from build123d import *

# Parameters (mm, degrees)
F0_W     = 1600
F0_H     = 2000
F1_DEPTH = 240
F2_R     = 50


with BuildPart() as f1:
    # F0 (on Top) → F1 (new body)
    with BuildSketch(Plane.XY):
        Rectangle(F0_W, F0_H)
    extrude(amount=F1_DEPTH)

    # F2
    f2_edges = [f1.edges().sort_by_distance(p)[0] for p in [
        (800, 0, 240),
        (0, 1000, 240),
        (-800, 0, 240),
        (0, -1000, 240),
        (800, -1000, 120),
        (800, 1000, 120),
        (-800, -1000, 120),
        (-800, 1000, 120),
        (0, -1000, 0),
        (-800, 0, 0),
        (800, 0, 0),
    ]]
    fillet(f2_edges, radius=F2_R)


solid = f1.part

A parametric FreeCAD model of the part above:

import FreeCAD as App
import Part
import Sketcher

V = App.Vector


def edges_at(feature, points):
    """Names of the edges that pass closest to the given points."""
    edges = feature.Shape.Edges
    near = lambda p: min(range(len(edges)), key=lambda i: edges[i].distToShape(Part.Vertex(*p))[0])
    return sorted({f"Edge{near(p) + 1}" for p in points})

doc = App.newDocument("Part")
body = doc.addObject("PartDesign::Body", "Body")

sketch1 = body.newObject("Sketcher::SketchObject", "Sketch")
sketch1.AttachmentSupport = (doc.getObject("XY_Plane"), [""])
sketch1.MapMode = "FlatFace"
sketch1.addGeometry([
    Part.LineSegment(V(-800, 1000, 0), V(-800, -1000, 0)),
    Part.LineSegment(V(-800, -1000, 0), V(800, -1000, 0)),
    Part.LineSegment(V(800, -1000, 0), V(800, 1000, 0)),
    Part.LineSegment(V(800, 1000, 0), V(-800, 1000, 0)),
], False)
sketch1.addConstraint([
    Sketcher.Constraint("Coincident", 0, 2, 1, 1),
    Sketcher.Constraint("Coincident", 1, 2, 2, 1),
    Sketcher.Constraint("Coincident", 2, 2, 3, 1),
    Sketcher.Constraint("Coincident", 3, 2, 0, 1),
    Sketcher.Constraint("Vertical", 0),
    Sketcher.Constraint("Horizontal", 1),
    Sketcher.Constraint("Vertical", 2),
    Sketcher.Constraint("Horizontal", 3),
    Sketcher.Constraint("Symmetric", 0, 2, 2, 2, -1, 1),
    Sketcher.Constraint("DistanceX", 1, 1, 1, 2, 1600.0),
    Sketcher.Constraint("DistanceY", 0, 2, 0, 1, 2000.0),
])
pad1 = body.newObject("PartDesign::Pad", "Pad")
pad1.Profile = sketch1
pad1.Length = 240
doc.recompute()

fillet = body.newObject("PartDesign::Fillet", "Fillet")
fillet.Base = (pad1, edges_at(pad1, [
    (800, 0, 240),
    (0, 1000, 240),
    (-800, 0, 240),
    (0, -1000, 240),
    (800, -1000, 120),
    (800, 1000, 120),
    (-800, -1000, 120),
    (-800, 1000, 120),
    (0, -1000, 0),
    (-800, 0, 0),
    (800, 0, 0),
]))
fillet.Radius = 50

doc.recompute()
